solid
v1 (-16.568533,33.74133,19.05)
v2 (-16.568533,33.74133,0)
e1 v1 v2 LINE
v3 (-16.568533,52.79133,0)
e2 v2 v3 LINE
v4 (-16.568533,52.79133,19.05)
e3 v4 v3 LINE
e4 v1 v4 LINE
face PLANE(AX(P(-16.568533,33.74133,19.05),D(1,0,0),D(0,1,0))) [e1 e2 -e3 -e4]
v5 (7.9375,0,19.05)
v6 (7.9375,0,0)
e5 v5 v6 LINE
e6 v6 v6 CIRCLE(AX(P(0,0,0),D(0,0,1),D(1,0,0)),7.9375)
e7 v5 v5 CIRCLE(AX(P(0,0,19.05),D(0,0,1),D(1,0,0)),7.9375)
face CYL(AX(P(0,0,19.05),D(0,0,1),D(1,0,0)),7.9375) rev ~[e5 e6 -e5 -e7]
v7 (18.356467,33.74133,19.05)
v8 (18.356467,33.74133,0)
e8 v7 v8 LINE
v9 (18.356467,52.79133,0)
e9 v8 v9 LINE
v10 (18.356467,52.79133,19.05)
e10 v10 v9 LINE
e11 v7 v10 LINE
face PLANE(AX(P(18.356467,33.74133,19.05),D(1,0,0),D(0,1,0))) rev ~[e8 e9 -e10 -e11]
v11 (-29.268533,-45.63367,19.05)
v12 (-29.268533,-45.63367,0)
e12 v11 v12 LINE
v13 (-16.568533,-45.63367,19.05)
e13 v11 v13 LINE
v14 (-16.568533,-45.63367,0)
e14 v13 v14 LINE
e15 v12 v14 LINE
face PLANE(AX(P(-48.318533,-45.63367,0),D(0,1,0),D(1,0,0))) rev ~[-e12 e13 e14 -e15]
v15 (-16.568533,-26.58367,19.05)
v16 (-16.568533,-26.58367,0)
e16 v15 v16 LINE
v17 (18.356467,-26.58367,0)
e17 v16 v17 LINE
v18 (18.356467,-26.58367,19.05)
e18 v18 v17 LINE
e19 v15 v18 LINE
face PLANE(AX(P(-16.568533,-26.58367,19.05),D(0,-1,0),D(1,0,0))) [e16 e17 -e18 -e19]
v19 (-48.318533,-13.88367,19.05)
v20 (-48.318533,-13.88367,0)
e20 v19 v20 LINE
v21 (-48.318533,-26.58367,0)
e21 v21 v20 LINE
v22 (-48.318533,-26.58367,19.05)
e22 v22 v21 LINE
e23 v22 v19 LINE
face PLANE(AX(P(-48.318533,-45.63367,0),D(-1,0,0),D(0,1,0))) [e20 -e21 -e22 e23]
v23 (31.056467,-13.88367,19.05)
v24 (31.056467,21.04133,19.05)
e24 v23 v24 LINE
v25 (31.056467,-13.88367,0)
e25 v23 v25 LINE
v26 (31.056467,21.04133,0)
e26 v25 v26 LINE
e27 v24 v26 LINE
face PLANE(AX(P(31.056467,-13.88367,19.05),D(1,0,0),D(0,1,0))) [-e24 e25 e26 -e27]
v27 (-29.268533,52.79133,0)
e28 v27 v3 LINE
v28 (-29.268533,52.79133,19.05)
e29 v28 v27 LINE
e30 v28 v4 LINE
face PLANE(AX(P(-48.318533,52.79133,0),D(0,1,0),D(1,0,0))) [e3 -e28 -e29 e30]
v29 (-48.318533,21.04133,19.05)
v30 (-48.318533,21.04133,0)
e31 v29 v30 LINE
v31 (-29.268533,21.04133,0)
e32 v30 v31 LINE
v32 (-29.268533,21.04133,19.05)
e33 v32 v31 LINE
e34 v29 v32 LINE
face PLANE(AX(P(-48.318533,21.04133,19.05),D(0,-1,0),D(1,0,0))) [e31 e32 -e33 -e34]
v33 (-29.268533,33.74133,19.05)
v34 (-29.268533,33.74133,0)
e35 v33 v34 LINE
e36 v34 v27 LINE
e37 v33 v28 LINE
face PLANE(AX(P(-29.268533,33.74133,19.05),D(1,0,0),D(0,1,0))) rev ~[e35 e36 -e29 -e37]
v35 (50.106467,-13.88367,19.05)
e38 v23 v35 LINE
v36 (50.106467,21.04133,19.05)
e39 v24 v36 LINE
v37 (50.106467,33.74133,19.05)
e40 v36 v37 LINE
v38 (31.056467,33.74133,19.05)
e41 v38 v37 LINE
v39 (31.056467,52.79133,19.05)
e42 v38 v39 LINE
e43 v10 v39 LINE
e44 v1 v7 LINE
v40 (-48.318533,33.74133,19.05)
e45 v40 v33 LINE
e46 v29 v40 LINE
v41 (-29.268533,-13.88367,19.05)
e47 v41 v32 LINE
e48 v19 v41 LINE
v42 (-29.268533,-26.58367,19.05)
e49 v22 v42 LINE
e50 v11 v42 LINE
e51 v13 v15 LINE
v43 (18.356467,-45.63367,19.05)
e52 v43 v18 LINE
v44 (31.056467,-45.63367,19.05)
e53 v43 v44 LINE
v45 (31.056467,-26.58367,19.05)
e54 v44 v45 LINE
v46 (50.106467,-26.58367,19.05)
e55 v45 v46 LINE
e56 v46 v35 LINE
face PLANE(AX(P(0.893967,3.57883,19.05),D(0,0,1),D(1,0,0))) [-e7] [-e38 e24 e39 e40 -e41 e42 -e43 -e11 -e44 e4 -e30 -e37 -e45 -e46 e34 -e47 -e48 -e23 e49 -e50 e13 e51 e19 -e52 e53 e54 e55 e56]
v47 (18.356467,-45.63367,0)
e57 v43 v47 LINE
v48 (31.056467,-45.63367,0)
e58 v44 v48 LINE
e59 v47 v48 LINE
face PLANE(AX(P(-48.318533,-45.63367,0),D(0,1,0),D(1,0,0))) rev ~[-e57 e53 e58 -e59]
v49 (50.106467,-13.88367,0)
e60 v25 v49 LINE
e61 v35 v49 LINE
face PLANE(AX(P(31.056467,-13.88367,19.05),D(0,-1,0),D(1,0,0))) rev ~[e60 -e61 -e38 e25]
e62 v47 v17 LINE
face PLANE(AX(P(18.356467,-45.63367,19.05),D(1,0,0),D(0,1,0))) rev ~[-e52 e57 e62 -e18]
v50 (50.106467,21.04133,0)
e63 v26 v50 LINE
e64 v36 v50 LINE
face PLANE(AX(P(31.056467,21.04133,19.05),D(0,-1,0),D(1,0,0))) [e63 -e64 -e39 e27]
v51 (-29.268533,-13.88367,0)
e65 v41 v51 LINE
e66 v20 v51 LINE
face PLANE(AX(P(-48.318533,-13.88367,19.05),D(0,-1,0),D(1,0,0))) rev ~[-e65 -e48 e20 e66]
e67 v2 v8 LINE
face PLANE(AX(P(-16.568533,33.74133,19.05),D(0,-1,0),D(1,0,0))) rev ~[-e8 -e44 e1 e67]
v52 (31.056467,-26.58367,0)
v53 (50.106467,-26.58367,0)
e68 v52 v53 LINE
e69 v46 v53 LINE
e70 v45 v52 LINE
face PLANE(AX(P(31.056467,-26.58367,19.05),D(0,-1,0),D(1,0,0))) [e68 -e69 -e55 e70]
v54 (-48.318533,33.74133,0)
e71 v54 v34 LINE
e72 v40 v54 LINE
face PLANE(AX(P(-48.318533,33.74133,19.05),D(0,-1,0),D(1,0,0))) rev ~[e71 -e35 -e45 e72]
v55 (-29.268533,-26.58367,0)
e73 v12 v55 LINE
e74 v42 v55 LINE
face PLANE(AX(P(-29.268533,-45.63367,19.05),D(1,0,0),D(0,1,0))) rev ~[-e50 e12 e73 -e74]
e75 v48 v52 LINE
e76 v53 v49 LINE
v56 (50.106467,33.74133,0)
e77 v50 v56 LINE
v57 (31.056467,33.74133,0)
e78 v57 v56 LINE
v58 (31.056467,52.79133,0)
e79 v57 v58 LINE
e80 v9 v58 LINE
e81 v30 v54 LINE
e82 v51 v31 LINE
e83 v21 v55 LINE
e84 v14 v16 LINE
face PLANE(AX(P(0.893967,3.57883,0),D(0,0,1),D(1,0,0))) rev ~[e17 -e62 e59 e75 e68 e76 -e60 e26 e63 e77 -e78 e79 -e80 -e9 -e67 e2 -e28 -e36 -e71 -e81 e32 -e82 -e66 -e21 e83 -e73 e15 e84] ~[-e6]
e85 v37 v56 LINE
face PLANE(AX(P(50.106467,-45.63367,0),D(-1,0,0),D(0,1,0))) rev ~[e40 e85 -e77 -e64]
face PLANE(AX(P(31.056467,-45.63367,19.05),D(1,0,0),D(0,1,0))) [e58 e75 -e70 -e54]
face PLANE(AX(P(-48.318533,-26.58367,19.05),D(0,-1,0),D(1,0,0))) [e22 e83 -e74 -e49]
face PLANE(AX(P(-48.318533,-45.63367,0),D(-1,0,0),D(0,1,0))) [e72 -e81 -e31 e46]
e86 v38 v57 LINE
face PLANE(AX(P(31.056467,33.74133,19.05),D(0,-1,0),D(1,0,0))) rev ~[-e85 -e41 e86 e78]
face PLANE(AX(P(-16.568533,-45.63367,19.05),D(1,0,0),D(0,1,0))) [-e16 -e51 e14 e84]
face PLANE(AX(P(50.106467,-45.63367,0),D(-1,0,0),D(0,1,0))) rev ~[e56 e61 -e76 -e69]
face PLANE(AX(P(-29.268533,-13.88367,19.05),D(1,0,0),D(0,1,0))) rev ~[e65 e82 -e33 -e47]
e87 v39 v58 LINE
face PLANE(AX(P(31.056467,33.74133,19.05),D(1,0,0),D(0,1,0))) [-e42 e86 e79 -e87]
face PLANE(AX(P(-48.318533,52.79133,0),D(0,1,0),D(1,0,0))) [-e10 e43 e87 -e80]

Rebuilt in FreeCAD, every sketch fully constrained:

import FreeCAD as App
import Part
import Sketcher
from FreeCAD import Vector
Q = App.Units.Quantity

doc = App.newDocument("Part")
body = doc.addObject("PartDesign::Body", "Body")

# Sketch on XY plane
sketch1 = body.newObject("Sketcher::SketchObject", "Sketch")
sketch1.AttachmentSupport = (doc.getObject("XY_Plane"), [""])
sketch1.MapMode = "FlatFace"
sketch1.addGeometry([
    Part.LineSegment(Vector(-48.318533, 52.79133, 0), Vector(-48.318533, -45.63367, 0)),
    Part.LineSegment(Vector(-48.318533, -45.63367, 0), Vector(50.106467, -45.63367, 0)),
    Part.LineSegment(Vector(50.106467, -45.63367, 0), Vector(50.106467, 52.79133, 0)),
    Part.LineSegment(Vector(50.106467, 52.79133, 0), Vector(-48.318533, 52.79133, 0)),
], False)
sketch1.addConstraint([
    Sketcher.Constraint("Coincident", 0, 2, 1, 1),
    Sketcher.Constraint("Coincident", 1, 2, 2, 1),
    Sketcher.Constraint("Coincident", 2, 2, 3, 1),
    Sketcher.Constraint("Coincident", 3, 2, 0, 1),
    Sketcher.Constraint("Vertical", 0),
    Sketcher.Constraint("Horizontal", 1),
    Sketcher.Constraint("Vertical", 2),
    Sketcher.Constraint("Horizontal", 3),
    Sketcher.Constraint("Equal", 3, 0),
    Sketcher.Constraint("DistanceX", 1, 1, 1, 2, Q("3.875 in")),
    Sketcher.Constraint("DistanceY", 0, 2, -1, 1, 45.63367),
    Sketcher.Constraint("DistanceX", 0, 2, -1, 1, 48.318533),
])
pad1 = body.newObject("PartDesign::Pad", "Pad")
pad1.Profile = sketch1
pad1.Length = Q("0.75 in")

# Sketch on XY plane
sketch2 = body.newObject("Sketcher::SketchObject", "Sketch001")
sketch2.AttachmentSupport = (doc.getObject("XY_Plane"), [""])
sketch2.MapMode = "FlatFace"
sketch2.AttachmentOffset = App.Placement(Vector(0, 0, 0.75 * 25.4), App.Rotation())
sketch2.addGeometry([
    Part.LineSegment(Vector(-48.318533, 52.79133, 0), Vector(-48.318533, 33.74133, 0)),  # 0
    Part.LineSegment(Vector(-48.318533, 33.74133, 0), Vector(-29.268533, 33.74133, 0)),  # 1
    Part.LineSegment(Vector(-29.268533, 33.74133, 0), Vector(-29.268533, 52.79133, 0)),  # 2
    Part.LineSegment(Vector(-29.268533, 52.79133, 0), Vector(-48.318533, 52.79133, 0)),  # 3
    Part.LineSegment(Vector(31.056467, 52.79133, 0), Vector(31.056467, 33.74133, 0)),  # 4
    Part.LineSegment(Vector(31.056467, 33.74133, 0), Vector(50.106467, 33.74133, 0)),  # 5
    Part.LineSegment(Vector(50.106467, 33.74133, 0), Vector(50.106467, 52.79133, 0)),  # 6
    Part.LineSegment(Vector(50.106467, 52.79133, 0), Vector(31.056467, 52.79133, 0)),  # 7
    Part.LineSegment(Vector(-48.318533, -26.58367, 0), Vector(-48.318533, -45.63367, 0)),  # 8
    Part.LineSegment(Vector(-48.318533, -45.63367, 0), Vector(-29.268533, -45.63367, 0)),  # 9
    Part.LineSegment(Vector(-29.268533, -45.63367, 0), Vector(-29.268533, -26.58367, 0)),  # 10
    Part.LineSegment(Vector(-29.268533, -26.58367, 0), Vector(-48.318533, -26.58367, 0)),  # 11
    Part.LineSegment(Vector(31.056467, -26.58367, 0), Vector(31.056467, -45.63367, 0)),  # 12
    Part.LineSegment(Vector(31.056467, -45.63367, 0), Vector(50.106467, -45.63367, 0)),  # 13
    Part.LineSegment(Vector(50.106467, -45.63367, 0), Vector(50.106467, -26.58367, 0)),  # 14
    Part.LineSegment(Vector(50.106467, -26.58367, 0), Vector(31.056467, -26.58367, 0)),  # 15
    Part.LineSegment(Vector(31.056467, 21.04133, 0), Vector(31.056467, -13.88367, 0)),  # 16
    Part.LineSegment(Vector(31.056467, -13.88367, 0), Vector(50.106467, -13.88367, 0)),  # 17
    Part.LineSegment(Vector(50.106467, -13.88367, 0), Vector(50.106467, 21.04133, 0)),  # 18
    Part.LineSegment(Vector(50.106467, 21.04133, 0), Vector(31.056467, 21.04133, 0)),  # 19
    Part.LineSegment(Vector(-48.318533, 21.04133, 0), Vector(-48.318533, -13.88367, 0)),  # 20
    Part.LineSegment(Vector(-48.318533, -13.88367, 0), Vector(-29.268533, -13.88367, 0)),  # 21
    Part.LineSegment(Vector(-29.268533, -13.88367, 0), Vector(-29.268533, 21.04133, 0)),  # 22
    Part.LineSegment(Vector(-29.268533, 21.04133, 0), Vector(-48.318533, 21.04133, 0)),  # 23
    Part.LineSegment(Vector(-16.568533, 52.79133, 0), Vector(-16.568533, 33.74133, 0)),  # 24
    Part.LineSegment(Vector(-16.568533, 33.74133, 0), Vector(18.356467, 33.74133, 0)),  # 25
    Part.LineSegment(Vector(18.356467, 33.74133, 0), Vector(18.356467, 52.79133, 0)),  # 26
    Part.LineSegment(Vector(18.356467, 52.79133, 0), Vector(-16.568533, 52.79133, 0)),  # 27
    Part.LineSegment(Vector(-16.568533, -26.58367, 0), Vector(-16.568533, -45.63367, 0)),  # 28
    Part.LineSegment(Vector(-16.568533, -45.63367, 0), Vector(18.356467, -45.63367, 0)),  # 29
    Part.LineSegment(Vector(18.356467, -45.63367, 0), Vector(18.356467, -26.58367, 0)),  # 30
    Part.LineSegment(Vector(18.356467, -26.58367, 0), Vector(-16.568533, -26.58367, 0)),  # 31
], False)
sketch2.addConstraint([
    Sketcher.Constraint("Coincident", 0, 2, 1, 1),
    Sketcher.Constraint("Coincident", 1, 2, 2, 1),
    Sketcher.Constraint("Coincident", 2, 2, 3, 1),
    Sketcher.Constraint("Coincident", 3, 2, 0, 1),
    Sketcher.Constraint("Coincident", 4, 2, 5, 1),
    Sketcher.Constraint("Coincident", 5, 2, 6, 1),
    Sketcher.Constraint("Coincident", 6, 2, 7, 1),
    Sketcher.Constraint("Coincident", 7, 2, 4, 1),
    Sketcher.Constraint("Coincident", 8, 2, 9, 1),
    Sketcher.Constraint("Coincident", 9, 2, 10, 1),
    Sketcher.Constraint("Coincident", 10, 2, 11, 1),
    Sketcher.Constraint("Coincident", 11, 2, 8, 1),
    Sketcher.Constraint("Coincident", 12, 2, 13, 1),
    Sketcher.Constraint("Coincident", 13, 2, 14, 1),
    Sketcher.Constraint("Coincident", 14, 2, 15, 1),
    Sketcher.Constraint("Coincident", 15, 2, 12, 1),
    Sketcher.Constraint("Coincident", 16, 2, 17, 1),
    Sketcher.Constraint("Coincident", 17, 2, 18, 1),
    Sketcher.Constraint("Coincident", 18, 2, 19, 1),
    Sketcher.Constraint("Coincident", 19, 2, 16, 1),
    Sketcher.Constraint("Coincident", 20, 2, 21, 1),
    Sketcher.Constraint("Coincident", 21, 2, 22, 1),
    Sketcher.Constraint("Coincident", 22, 2, 23, 1),
    Sketcher.Constraint("Coincident", 23, 2, 20, 1),
    Sketcher.Constraint("Coincident", 24, 2, 25, 1),
    Sketcher.Constraint("Coincident", 25, 2, 26, 1),
    Sketcher.Constraint("Coincident", 26, 2, 27, 1),
    Sketcher.Constraint("Coincident", 27, 2, 24, 1),
    Sketcher.Constraint("Coincident", 28, 2, 29, 1),
    Sketcher.Constraint("Coincident", 29, 2, 30, 1),
    Sketcher.Constraint("Coincident", 30, 2, 31, 1),
    Sketcher.Constraint("Coincident", 31, 2, 28, 1),
    Sketcher.Constraint("Vertical", 0),
    Sketcher.Constraint("Horizontal", 1),
    Sketcher.Constraint("Vertical", 2),
    Sketcher.Constraint("Horizontal", 3),
    Sketcher.Constraint("Vertical", 4),
    Sketcher.Constraint("Horizontal", 5),
    Sketcher.Constraint("Vertical", 6),
    Sketcher.Constraint("Horizontal", 7),
    Sketcher.Constraint("Vertical", 8),
    Sketcher.Constraint("Horizontal", 9),
    Sketcher.Constraint("Vertical", 10),
    Sketcher.Constraint("Horizontal", 11),
    Sketcher.Constraint("Vertical", 12),
    Sketcher.Constraint("Horizontal", 13),
    Sketcher.Constraint("Vertical", 14),
    Sketcher.Constraint("Horizontal", 15),
    Sketcher.Constraint("Vertical", 16),
    Sketcher.Constraint("Horizontal", 17),
    Sketcher.Constraint("Vertical", 18),
    Sketcher.Constraint("Horizontal", 19),
    Sketcher.Constraint("Vertical", 20),
    Sketcher.Constraint("Horizontal", 21),
    Sketcher.Constraint("Vertical", 22),
    Sketcher.Constraint("Horizontal", 23),
    Sketcher.Constraint("Vertical", 24),
    Sketcher.Constraint("Horizontal", 25),
    Sketcher.Constraint("Vertical", 26),
    Sketcher.Constraint("Horizontal", 27),
    Sketcher.Constraint("Vertical", 28),
    Sketcher.Constraint("Horizontal", 29),
    Sketcher.Constraint("Vertical", 30),
    Sketcher.Constraint("Horizontal", 31),
    Sketcher.Constraint("Horizontal", 1, 2, 4, 2),
    Sketcher.Constraint("Horizontal", 3, 2, 6, 2),
    Sketcher.Constraint("Horizontal", 9, 2, 12, 2),
    Sketcher.Constraint("Horizontal", 11, 2, 14, 2),
    Sketcher.Constraint("Horizontal", 17, 2, 20, 2),
    Sketcher.Constraint("Horizontal", 19, 2, 22, 2),
    Sketcher.Constraint("Horizontal", 5, 2, 24, 2),
    Sketcher.Constraint("Horizontal", 7, 2, 26, 2),
    Sketcher.Constraint("Horizontal", 13, 2, 28, 2),
    Sketcher.Constraint("Horizontal", 15, 2, 30, 2),
    Sketcher.Constraint("Vertical", 3, 2, 8, 2),
    Sketcher.Constraint("Vertical", 2, 2, 9, 2),
    Sketcher.Constraint("Vertical", 7, 2, 12, 2),
    Sketcher.Constraint("Vertical", 6, 2, 13, 2),
    Sketcher.Constraint("Vertical", 15, 2, 16, 2),
    Sketcher.Constraint("Vertical", 14, 2, 17, 2),
    Sketcher.Constraint("Vertical", 11, 2, 20, 2),
    Sketcher.Constraint("Vertical", 10, 2, 21, 2),
    Sketcher.Constraint("Vertical", 27, 2, 28, 2),
    Sketcher.Constraint("Vertical", 26, 2, 29, 2),
    Sketcher.Constraint("Equal", 3, 5),
    Sketcher.Constraint("Equal", 23, 0),
    Sketcher.Constraint("Equal", 6, 8),
    Sketcher.Constraint("Equal", 31, 16),
    Sketcher.Constraint("DistanceX", 1, 1, 1, 2, Q("0.75 in")),
    Sketcher.Constraint("DistanceY", 15, 2, 16, 2, Q("0.5 in")),
    Sketcher.Constraint("DistanceY", 18, 2, 5, 2, Q("0.5 in")),
    Sketcher.Constraint("DistanceX", 1, 2, 24, 2, Q("0.5 in")),
    Sketcher.Constraint("DistanceX", 25, 2, 4, 2, Q("0.5 in")),
    Sketcher.Constraint("DistanceX", 25, 1, 25, 2, Q("1.375 in")),
    Sketcher.Constraint("DistanceY", -1, 1, 0, 2, 33.74133),
    Sketcher.Constraint("DistanceX", 0, 2, -1, 1, 48.318533),
])
pocket1 = body.newObject("PartDesign::Pocket", "Pocket")
pocket1.Profile = sketch2
pocket1.Type = "ThroughAll"

# Sketch on XY plane
sketch3 = body.newObject("Sketcher::SketchObject", "Sketch002")
sketch3.AttachmentSupport = (doc.getObject("XY_Plane"), [""])
sketch3.MapMode = "FlatFace"
sketch3.AttachmentOffset = App.Placement(Vector(0, 0, 0.75 * 25.4), App.Rotation())
sketch3.addGeometry(Part.Circle(Vector(0, 0, 0), Vector(0, 0, 1), 7.9375), False)
sketch3.addConstraint([
    Sketcher.Constraint("Coincident", 0, 3, -1, 1),
    Sketcher.Constraint("Diameter", 0, Q("0.625 in")),
])
pocket2 = body.newObject("PartDesign::Pocket", "Pocket001")
pocket2.Profile = sketch3
pocket2.Type = "ThroughAll"

doc.recompute()
